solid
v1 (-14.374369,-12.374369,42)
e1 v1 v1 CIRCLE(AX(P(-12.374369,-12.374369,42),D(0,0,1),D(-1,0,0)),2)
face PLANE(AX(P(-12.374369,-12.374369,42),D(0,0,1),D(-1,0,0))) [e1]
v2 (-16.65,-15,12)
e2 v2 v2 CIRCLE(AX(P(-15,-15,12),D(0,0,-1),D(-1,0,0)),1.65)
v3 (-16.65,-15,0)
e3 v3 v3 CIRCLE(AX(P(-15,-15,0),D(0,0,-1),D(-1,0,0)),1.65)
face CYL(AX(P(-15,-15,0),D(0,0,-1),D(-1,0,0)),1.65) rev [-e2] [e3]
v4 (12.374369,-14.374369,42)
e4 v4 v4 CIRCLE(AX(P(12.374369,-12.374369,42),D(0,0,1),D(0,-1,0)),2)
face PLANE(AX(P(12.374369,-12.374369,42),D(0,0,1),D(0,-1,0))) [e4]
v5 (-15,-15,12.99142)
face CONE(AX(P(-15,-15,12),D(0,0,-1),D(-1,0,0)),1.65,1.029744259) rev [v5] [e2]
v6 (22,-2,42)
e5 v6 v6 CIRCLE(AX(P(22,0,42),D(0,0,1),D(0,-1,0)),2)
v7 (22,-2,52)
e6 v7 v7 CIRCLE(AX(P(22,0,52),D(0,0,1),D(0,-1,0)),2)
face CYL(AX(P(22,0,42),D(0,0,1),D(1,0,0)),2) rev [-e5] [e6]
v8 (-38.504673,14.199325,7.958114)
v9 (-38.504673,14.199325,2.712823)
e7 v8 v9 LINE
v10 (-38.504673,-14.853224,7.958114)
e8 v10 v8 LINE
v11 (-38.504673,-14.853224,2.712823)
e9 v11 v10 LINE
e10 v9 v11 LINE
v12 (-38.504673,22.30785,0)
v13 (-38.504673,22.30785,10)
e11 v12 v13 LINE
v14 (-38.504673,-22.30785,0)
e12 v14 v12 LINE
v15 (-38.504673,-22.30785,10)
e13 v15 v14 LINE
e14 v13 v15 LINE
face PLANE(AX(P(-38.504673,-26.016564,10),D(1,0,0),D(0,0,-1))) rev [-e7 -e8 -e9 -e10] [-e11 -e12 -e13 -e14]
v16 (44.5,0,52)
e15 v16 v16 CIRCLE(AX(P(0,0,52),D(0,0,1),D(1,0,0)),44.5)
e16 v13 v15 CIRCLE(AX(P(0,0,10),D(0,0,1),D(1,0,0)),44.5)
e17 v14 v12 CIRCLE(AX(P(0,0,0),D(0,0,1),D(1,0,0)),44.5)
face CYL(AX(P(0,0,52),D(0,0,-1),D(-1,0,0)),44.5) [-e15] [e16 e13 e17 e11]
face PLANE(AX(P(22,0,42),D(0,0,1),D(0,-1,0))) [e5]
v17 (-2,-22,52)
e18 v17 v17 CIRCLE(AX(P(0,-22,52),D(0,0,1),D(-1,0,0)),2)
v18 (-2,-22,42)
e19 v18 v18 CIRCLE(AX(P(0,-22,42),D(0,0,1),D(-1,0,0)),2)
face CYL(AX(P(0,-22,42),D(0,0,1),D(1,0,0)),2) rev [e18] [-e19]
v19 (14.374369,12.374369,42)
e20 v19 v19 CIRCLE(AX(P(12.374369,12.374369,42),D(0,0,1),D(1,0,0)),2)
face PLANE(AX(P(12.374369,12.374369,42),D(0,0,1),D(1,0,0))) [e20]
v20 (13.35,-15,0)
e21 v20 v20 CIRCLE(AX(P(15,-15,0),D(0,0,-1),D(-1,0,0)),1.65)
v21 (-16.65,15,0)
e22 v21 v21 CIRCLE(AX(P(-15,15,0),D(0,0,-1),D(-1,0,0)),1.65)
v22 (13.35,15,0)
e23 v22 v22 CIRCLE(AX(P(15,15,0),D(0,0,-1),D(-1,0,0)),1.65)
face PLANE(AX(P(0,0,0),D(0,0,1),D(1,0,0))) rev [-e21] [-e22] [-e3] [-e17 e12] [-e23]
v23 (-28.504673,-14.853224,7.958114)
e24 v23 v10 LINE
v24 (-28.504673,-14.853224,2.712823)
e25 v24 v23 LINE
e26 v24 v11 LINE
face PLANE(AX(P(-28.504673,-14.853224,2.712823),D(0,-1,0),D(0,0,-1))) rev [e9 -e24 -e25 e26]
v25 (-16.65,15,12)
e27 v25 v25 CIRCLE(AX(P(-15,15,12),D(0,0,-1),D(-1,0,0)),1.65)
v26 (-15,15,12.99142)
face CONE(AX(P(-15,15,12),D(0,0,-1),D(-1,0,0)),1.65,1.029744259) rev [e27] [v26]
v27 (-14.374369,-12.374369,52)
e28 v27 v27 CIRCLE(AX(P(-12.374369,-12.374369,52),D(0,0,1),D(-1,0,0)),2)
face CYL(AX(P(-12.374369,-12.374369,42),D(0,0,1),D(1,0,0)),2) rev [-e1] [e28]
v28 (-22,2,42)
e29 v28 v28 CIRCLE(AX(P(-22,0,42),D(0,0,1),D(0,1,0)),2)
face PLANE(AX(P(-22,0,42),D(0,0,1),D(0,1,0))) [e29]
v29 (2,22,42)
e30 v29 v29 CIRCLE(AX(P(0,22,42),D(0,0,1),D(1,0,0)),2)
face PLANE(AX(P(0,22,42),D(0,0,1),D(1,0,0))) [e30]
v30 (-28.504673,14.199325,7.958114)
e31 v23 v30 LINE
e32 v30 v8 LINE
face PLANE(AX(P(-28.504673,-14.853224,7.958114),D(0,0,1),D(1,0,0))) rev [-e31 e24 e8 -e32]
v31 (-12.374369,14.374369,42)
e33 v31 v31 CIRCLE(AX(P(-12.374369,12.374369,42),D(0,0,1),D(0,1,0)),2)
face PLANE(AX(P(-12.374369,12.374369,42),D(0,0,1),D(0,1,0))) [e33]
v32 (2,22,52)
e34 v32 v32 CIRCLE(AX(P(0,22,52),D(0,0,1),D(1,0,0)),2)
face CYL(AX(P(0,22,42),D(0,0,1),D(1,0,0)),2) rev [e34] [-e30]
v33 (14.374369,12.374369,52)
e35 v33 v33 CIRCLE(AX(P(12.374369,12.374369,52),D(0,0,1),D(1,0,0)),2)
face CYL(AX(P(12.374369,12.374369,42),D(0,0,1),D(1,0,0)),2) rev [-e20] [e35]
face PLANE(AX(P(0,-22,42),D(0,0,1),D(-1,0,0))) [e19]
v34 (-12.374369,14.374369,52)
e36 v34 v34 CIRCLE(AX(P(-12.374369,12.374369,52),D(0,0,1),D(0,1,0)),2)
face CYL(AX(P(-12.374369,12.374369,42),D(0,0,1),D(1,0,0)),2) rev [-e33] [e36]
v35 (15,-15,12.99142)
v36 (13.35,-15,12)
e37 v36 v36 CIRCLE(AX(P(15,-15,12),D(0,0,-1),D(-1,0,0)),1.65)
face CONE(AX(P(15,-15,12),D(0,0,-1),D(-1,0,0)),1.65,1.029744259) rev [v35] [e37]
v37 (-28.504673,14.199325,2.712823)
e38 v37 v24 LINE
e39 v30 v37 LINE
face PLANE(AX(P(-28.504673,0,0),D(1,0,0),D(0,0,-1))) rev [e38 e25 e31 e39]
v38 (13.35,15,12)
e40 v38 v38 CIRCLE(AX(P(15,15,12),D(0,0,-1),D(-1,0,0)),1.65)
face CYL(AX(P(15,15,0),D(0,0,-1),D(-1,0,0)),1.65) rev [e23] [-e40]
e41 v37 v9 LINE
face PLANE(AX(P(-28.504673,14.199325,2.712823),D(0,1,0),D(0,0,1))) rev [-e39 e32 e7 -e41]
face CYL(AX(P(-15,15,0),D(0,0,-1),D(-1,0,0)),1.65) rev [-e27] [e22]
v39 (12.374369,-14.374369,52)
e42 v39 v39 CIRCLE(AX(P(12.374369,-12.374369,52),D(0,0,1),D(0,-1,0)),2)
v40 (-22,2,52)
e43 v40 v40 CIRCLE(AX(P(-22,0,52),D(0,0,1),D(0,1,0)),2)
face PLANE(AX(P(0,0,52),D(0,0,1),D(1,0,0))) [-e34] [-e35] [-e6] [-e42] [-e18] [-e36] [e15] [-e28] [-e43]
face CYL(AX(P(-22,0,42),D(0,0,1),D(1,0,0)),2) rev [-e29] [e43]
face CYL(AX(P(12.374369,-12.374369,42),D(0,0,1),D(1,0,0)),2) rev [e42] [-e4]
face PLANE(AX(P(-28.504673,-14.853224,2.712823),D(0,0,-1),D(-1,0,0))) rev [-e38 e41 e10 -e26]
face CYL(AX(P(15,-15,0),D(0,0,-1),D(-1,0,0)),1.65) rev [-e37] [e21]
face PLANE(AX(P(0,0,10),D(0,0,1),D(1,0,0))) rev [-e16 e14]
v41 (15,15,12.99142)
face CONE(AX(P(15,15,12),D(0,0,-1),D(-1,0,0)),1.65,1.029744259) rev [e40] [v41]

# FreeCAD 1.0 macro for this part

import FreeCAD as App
import Part
import Sketcher

V = App.Vector
Q = App.Units.Quantity


def add_polygon(sketch, points):
    """Adds a closed chain of lines whose ends are joined by coincident constraints."""
    first, n = sketch.GeometryCount, len(points)
    for a, b in zip(points, points[1:] + points[:1]):
        sketch.addGeometry(Part.LineSegment(App.Vector(*a, 0), App.Vector(*b, 0)), False)
    for i in range(n):
        sketch.addConstraint(Sketcher.Constraint("Coincident", first + i, 2, first + (i + 1) % n, 1))

doc = App.newDocument("Part")
params = doc.addObject("Spreadsheet::Sheet", "Params")
for row, (alias, value) in enumerate([
    ("sketch1_diameter", "89 mm"),
    ("pad1_length", "52 mm"),
    ("sketch2_diameter", "3.3 mm"),
    ("hole_diameter", "3.3 mm"),
    ("hole_depth", "12 mm"),
    ("sketch3_diameter", "4 mm"),
    ("pocket1_length", "10 mm"),
    ("pocket2_length", "10 mm"),
    ("pocket3_length", "10 mm"),
], start=1):
    params.set(f"A{row}", alias)
    params.set(f"B{row}", "=" + value)
    params.setAlias(f"B{row}", alias)

body = doc.addObject("PartDesign::Body", "Body")

# Sketch on XY plane
sketch1 = body.newObject("Sketcher::SketchObject", "Sketch")
sketch1.AttachmentSupport = (doc.getObject("XY_Plane"), [""])
sketch1.MapMode = "FlatFace"
sketch1.addGeometry(Part.Circle(V(0, 0, 0), V(0, 0, 1), 44), False)
sketch1.addConstraint(Sketcher.Constraint("Coincident", 0, 3, -1, 1))
sketch1.addConstraint(Sketcher.Constraint("Diameter", 0, Q("89 mm")))
sketch1.setExpression("Constraints[1]", "Params.sketch1_diameter")
pad1 = body.newObject("PartDesign::Pad", "Pad")
pad1.Profile = sketch1
pad1.setExpression("Length", "Params.pad1_length")

# Sketch on XY plane
sketch2 = body.newObject("Sketcher::SketchObject", "Sketch001")
sketch2.AttachmentSupport = (doc.getObject("XY_Plane"), [""])
sketch2.MapMode = "FlatFace"
sketch2.addGeometry(Part.Circle(V(15, 15, 0), V(0, 0, 1), 1.6), False)
sketch2.addGeometry(Part.Circle(V(-15, 15, 0), V(0, 0, 1), 1.6), False)
sketch2.addGeometry(Part.Circle(V(-15, -15, 0), V(0, 0, 1), 1.6), False)
sketch2.addGeometry(Part.Circle(V(15, -15, 0), V(0, 0, 1), 1.6), False)
sketch2.addConstraint(Sketcher.Constraint("Equal", 0, 1))
sketch2.addConstraint(Sketcher.Constraint("Equal", 1, 2))
sketch2.addConstraint(Sketcher.Constraint("Equal", 2, 3))
sketch2.addConstraint(Sketcher.Constraint("Symmetric", 0, 3, 2, 3, -1, 1))
sketch2.addConstraint(Sketcher.Constraint("Symmetric", 1, 3, 3, 3, -1, 1))
sketch2.addConstraint(Sketcher.Constraint("Symmetric", 0, 3, 1, 3, -2))
sketch2.addConstraint(Sketcher.Constraint("Diameter", 0, Q("3.3 mm")))
sketch2.addConstraint(Sketcher.Constraint("DistanceX", -1, 1, 0, 3, Q("15 mm")))
sketch2.addConstraint(Sketcher.Constraint("DistanceY", -1, 1, 0, 3, Q("15 mm")))
sketch2.setExpression("Constraints[6]", "Params.sketch2_diameter")
doc.recompute()
hole = body.newObject("PartDesign::Hole", "Hole")
hole.Profile = sketch2
hole.ThreadType = "None"
hole.setExpression("Diameter", "Params.hole_diameter")
hole.DepthType = "Dimension"
hole.setExpression("Depth", "Params.hole_depth")
hole.DrillPoint = "Angled"
hole.DrillPointAngle = 118
hole.Reversed = True

# Sketch on XY plane
sketch3 = body.newObject("Sketcher::SketchObject", "Sketch002")
sketch3.AttachmentSupport = (doc.getObject("XY_Plane"), [""])
sketch3.MapMode = "FlatFace"
sketch3.AttachmentOffset = App.Placement(V(0, 0, 52), App.Rotation())
sketch3.addGeometry(Part.Circle(V(0, 22, 0), V(0, 0, 1), 2), False)
sketch3.addGeometry(Part.Circle(V(12.4, 12.4, 0), V(0, 0, 1), 2), False)
sketch3.addConstraint(Sketcher.Constraint("Equal", 0, 1))
sketch3.addConstraint(Sketcher.Constraint("PointOnObject", 0, 3, -2))
sketch3.addConstraint(Sketcher.Constraint("Diameter", 0, Q("4 mm")))
sketch3.addConstraint(Sketcher.Constraint("DistanceY", -1, 1, 0, 3, Q("22 mm")))
sketch3.addConstraint(Sketcher.Constraint("DistanceX", -1, 1, 1, 3, Q("12.374369 mm")))
sketch3.addConstraint(Sketcher.Constraint("DistanceY", -1, 1, 1, 3, Q("12.374369 mm")))
sketch3.setExpression("Constraints[2]", "Params.sketch3_diameter")
pocket1 = body.newObject("PartDesign::Pocket", "Pocket")
pocket1.Profile = sketch3
pocket1.setExpression("Length", "Params.pocket1_length")
doc.recompute()

polarpattern = body.newObject("PartDesign::PolarPattern", "PolarPattern")
polarpattern.Originals = [pocket1]
polarpattern.Axis = (doc.getObject("Z_Axis"), [""])
polarpattern.Angle = 360
polarpattern.Occurrences = 4
body.Tip = polarpattern

# Sketch on XY plane
sketch4 = body.newObject("Sketcher::SketchObject", "Sketch003")
sketch4.AttachmentSupport = (doc.getObject("XY_Plane"), [""])
sketch4.MapMode = "FlatFace"
add_polygon(sketch4, [(-39, 23), (-39, -26), (-58, -26), (-58, 23)])  # lines 0-3
sketch4.addConstraint(Sketcher.Constraint("Vertical", 0))
sketch4.addConstraint(Sketcher.Constraint("Horizontal", 1))
sketch4.addConstraint(Sketcher.Constraint("Vertical", 2))
sketch4.addConstraint(Sketcher.Constraint("Horizontal", 3))
sketch4.addConstraint(Sketcher.Constraint("DistanceY", 0, 2, 0, 1, Q("48.54732 mm")))
sketch4.addConstraint(Sketcher.Constraint("DistanceX", 1, 2, 1, 1, Q("19.478253 mm")))
sketch4.addConstraint(Sketcher.Constraint("DistanceX", 0, 2, -1, 1, Q("38.504673 mm")))
sketch4.addConstraint(Sketcher.Constraint("DistanceY", 0, 2, -1, 1, Q("26.016564 mm")))
pocket2 = body.newObject("PartDesign::Pocket", "Pocket001")
pocket2.Profile = sketch4
pocket2.setExpression("Length", "Params.pocket2_length")
pocket2.Reversed = True

# Sketch on YZ plane
sketch5 = body.newObject("Sketcher::SketchObject", "Sketch004")
sketch5.AttachmentSupport = (doc.getObject("YZ_Plane"), [""])
sketch5.MapMode = "FlatFace"
sketch5.AttachmentOffset = App.Placement(V(0, 0, -38.504673), App.Rotation())
add_polygon(sketch5, [(14, 3), (-15, 3), (-15, 8), (14, 8)])  # lines 0-3
sketch5.addConstraint(Sketcher.Constraint("Horizontal", 0))
sketch5.addConstraint(Sketcher.Constraint("Vertical", 1))
sketch5.addConstraint(Sketcher.Constraint("Horizontal", 2))
sketch5.addConstraint(Sketcher.Constraint("Vertical", 3))
sketch5.addConstraint(Sketcher.Constraint("DistanceX", 0, 2, 0, 1, Q("29.052549 mm")))
sketch5.addConstraint(Sketcher.Constraint("DistanceY", 1, 1, 1, 2, Q("5.245291 mm")))
sketch5.addConstraint(Sketcher.Constraint("DistanceX", 0, 2, -1, 1, Q("14.853224 mm")))
sketch5.addConstraint(Sketcher.Constraint("DistanceY", -1, 1, 0, 2, Q("2.712823 mm")))
pocket3 = body.newObject("PartDesign::Pocket", "Pocket002")
pocket3.Profile = sketch5
pocket3.setExpression("Length", "Params.pocket3_length")
pocket3.Reversed = True

doc.recompute()
